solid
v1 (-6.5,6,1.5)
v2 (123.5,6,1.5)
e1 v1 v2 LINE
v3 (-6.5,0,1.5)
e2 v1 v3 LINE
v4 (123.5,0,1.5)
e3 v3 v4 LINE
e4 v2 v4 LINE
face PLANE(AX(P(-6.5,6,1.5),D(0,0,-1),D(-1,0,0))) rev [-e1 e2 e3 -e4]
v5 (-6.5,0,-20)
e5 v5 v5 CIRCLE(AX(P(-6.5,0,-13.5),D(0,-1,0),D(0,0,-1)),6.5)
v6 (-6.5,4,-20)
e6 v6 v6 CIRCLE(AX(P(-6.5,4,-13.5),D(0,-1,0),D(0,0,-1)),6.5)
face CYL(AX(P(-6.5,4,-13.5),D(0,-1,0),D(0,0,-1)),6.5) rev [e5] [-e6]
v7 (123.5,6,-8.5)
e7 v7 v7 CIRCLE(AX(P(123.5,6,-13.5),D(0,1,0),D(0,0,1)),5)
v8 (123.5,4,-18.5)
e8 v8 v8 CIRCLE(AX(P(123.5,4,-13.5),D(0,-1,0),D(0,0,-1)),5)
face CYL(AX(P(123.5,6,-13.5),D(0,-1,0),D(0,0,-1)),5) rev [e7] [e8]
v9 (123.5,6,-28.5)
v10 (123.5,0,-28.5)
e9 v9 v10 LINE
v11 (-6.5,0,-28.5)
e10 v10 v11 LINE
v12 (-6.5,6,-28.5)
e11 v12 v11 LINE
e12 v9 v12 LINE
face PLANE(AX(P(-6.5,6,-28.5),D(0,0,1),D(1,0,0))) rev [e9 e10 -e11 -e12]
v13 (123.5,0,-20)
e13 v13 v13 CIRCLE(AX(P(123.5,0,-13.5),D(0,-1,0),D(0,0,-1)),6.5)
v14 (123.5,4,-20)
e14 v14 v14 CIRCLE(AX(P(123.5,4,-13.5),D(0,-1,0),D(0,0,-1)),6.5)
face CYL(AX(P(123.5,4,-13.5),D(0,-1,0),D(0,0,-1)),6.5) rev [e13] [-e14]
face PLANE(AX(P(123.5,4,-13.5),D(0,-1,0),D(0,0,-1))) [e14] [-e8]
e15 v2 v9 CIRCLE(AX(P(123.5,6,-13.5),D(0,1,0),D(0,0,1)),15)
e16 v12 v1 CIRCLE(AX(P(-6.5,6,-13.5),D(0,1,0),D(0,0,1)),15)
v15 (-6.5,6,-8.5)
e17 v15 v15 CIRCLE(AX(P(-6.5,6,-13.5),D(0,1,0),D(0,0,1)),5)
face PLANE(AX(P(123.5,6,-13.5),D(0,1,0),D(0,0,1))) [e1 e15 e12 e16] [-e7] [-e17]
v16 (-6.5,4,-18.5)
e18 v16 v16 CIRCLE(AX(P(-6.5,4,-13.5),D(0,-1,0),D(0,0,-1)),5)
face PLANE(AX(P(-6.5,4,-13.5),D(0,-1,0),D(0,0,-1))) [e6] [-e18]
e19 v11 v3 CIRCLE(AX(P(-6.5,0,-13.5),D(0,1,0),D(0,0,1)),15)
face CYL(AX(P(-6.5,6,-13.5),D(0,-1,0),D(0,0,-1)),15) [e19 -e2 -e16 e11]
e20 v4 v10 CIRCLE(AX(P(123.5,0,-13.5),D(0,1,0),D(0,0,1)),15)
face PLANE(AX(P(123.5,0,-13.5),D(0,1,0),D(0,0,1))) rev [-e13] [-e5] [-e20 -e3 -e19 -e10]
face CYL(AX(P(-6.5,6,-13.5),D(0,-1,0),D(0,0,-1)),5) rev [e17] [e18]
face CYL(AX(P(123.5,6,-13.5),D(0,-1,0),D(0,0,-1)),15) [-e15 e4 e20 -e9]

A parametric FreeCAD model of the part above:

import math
import FreeCAD as App
import Part
import Sketcher
from FreeCAD import Vector
Q = App.Units.Quantity

doc = App.newDocument("Part")
params = doc.addObject("Spreadsheet::Sheet", "Params")
for row, (alias, value) in enumerate([
    ("sketch1_diameter", "10 mm"),
    ("sketch1_radius", "15 mm"),
    ("sketch1_width", "130 mm"),
    ("pad1_length", "6 mm"),
    ("sketch2_diameter", "13 mm"),
    ("pocket1_length", "4 mm"),
], start=1):
    params.set(f"A{row}", alias)
    params.set(f"B{row}", "=" + value)
    params.setAlias(f"B{row}", alias)

body = doc.addObject("PartDesign::Body", "Body")

# Sketch on XZ plane
sketch1 = body.newObject("Sketcher::SketchObject", "Sketch")
sketch1.AttachmentSupport = (doc.getObject("XZ_Plane"), [""])
sketch1.MapMode = "FlatFace"
sketch1.addGeometry([
    Part.LineSegment(Vector(124, -28, 0), Vector(-6, -28, 0)),  # 0
    Part.ArcOfCircle(Part.Circle(Vector(-6, -14, 0), Vector(0, 0, 1), 15), math.radians(90), math.radians(270)),  # 1
    Part.LineSegment(Vector(-6, 2, 0), Vector(124, 2, 0)),  # 2
    Part.ArcOfCircle(Part.Circle(Vector(124, -14, 0), Vector(0, 0, 1), 15), math.radians(-90), math.radians(90)),  # 3
    Part.Circle(Vector(124, -14, 0), Vector(0, 0, 1), 5),  # 4
    Part.Circle(Vector(-6, -14, 0), Vector(0, 0, 1), 5),  # 5
], False)
sketch1.addConstraint([
    Sketcher.Constraint("Tangent", 0, 2, 1, 2),
    Sketcher.Constraint("Tangent", 1, 1, 2, 1),
    Sketcher.Constraint("Tangent", 2, 2, 3, 2),
    Sketcher.Constraint("Tangent", 3, 1, 0, 1),
    Sketcher.Constraint("Horizontal", 0),
    Sketcher.Constraint("Horizontal", 2),
    Sketcher.Constraint("Coincident", 4, 3, 3, 3),
    Sketcher.Constraint("Coincident", 5, 3, 1, 3),
    Sketcher.Constraint("Equal", 4, 5),
    Sketcher.Constraint("Diameter", 4, Q("10 mm")),
    Sketcher.Constraint("Radius", 1, Q("15 mm")),
    Sketcher.Constraint("DistanceX", 0, 2, 0, 1, Q("130 mm")),
    Sketcher.Constraint("DistanceX", 1, 3, -1, 1, Q("6.5 mm")),
    Sketcher.Constraint("DistanceY", 1, 3, -1, 1, Q("13.5 mm")),
])
sketch1.setExpression("Constraints[9]", "Params.sketch1_diameter")
sketch1.setExpression("Constraints[10]", "Params.sketch1_radius")
sketch1.setExpression("Constraints[11]", "Params.sketch1_width")
pad1 = body.newObject("PartDesign::Pad", "Pad")
pad1.Profile = sketch1
pad1.setExpression("Length", "Params.pad1_length")
pad1.Reversed = True

# Sketch on XZ plane
sketch2 = body.newObject("Sketcher::SketchObject", "Sketch001")
sketch2.AttachmentSupport = (doc.getObject("XZ_Plane"), [""])
sketch2.MapMode = "FlatFace"
sketch2.addGeometry([
    Part.Circle(Vector(124, -14, 0), Vector(0, 0, 1), 6),
    Part.Circle(Vector(-6, -14, 0), Vector(0, 0, 1), 6),
], False)
sketch2.addConstraint([
    Sketcher.Constraint("Equal", 0, 1),
    Sketcher.Constraint("Horizontal", 0, 3, 1, 3),
    Sketcher.Constraint("Diameter", 0, Q("13 mm")),
    Sketcher.Constraint("DistanceX", 1, 3, 0, 3, Q("130 mm")),
    Sketcher.Constraint("DistanceX", -1, 1, 0, 3, Q("123.5 mm")),
    Sketcher.Constraint("DistanceY", 0, 3, -1, 1, Q("13.5 mm")),
])
sketch2.setExpression("Constraints[2]", "Params.sketch2_diameter")
pocket1 = body.newObject("PartDesign::Pocket", "Pocket")
pocket1.Profile = sketch2
pocket1.setExpression("Length", "Params.pocket1_length")

doc.recompute()
